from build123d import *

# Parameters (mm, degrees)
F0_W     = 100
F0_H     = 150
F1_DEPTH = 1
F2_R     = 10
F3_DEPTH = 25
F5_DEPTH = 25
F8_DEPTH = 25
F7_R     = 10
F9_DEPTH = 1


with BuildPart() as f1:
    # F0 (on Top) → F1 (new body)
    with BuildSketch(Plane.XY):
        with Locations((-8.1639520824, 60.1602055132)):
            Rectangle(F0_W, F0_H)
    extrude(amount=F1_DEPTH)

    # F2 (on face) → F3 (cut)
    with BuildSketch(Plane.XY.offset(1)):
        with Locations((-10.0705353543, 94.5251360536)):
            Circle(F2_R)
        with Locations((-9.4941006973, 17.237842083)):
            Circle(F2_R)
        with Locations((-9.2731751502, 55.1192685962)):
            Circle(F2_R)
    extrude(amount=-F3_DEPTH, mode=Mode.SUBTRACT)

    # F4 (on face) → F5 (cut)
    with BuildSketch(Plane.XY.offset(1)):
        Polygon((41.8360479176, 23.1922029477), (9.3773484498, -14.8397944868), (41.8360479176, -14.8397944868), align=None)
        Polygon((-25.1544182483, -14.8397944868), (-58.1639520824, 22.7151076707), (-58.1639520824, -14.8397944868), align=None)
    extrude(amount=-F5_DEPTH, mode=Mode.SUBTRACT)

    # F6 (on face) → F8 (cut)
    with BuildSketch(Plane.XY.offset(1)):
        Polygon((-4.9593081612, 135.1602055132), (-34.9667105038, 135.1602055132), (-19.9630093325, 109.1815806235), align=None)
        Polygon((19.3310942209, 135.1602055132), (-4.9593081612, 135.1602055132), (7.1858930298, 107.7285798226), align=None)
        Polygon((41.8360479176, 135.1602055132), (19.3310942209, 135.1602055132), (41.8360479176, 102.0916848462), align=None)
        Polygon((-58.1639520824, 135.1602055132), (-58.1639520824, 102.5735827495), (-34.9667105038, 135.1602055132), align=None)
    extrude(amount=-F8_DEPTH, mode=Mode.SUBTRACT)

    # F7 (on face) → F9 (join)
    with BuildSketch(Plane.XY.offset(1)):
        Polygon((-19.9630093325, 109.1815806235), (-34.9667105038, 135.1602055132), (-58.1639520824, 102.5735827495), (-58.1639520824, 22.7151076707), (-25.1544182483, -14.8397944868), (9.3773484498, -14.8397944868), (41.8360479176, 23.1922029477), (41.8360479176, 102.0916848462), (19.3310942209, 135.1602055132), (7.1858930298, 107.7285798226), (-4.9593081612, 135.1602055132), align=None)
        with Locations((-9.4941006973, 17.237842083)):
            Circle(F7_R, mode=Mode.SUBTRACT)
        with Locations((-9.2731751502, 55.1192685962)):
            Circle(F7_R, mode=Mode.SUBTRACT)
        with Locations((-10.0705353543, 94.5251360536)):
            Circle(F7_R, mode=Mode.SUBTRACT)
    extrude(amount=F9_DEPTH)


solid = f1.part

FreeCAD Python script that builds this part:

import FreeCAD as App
import Part
import Sketcher


def add_polygon(sketch, points):
    """Adds a closed chain of lines whose ends are joined by coincident constraints."""
    first, n = sketch.GeometryCount, len(points)
    for a, b in zip(points, points[1:] + points[:1]):
        sketch.addGeometry(Part.LineSegment(App.Vector(*a, 0), App.Vector(*b, 0)), False)
    for i in range(n):
        sketch.addConstraint(Sketcher.Constraint("Coincident", first + i, 2, first + (i + 1) % n, 1))

doc = App.newDocument("Part")
body = doc.addObject("PartDesign::Body", "Body")

# Sketch on XY plane
sketch1 = doc.addObject("Sketcher::SketchObject", "Sketch")
body.addObject(sketch1)
sketch1.AttachmentSupport = (doc.XY_Plane, [""])
sketch1.MapMode = "FlatFace"
add_polygon(sketch1, [(-58.163952, 135.160206), (-58.163952, -14.839794), (41.836048, -14.839794), (41.836048, 135.160206)])  # lines 0-3
sketch1.addConstraint(Sketcher.Constraint("Vertical", 0))
sketch1.addConstraint(Sketcher.Constraint("Horizontal", 1))
sketch1.addConstraint(Sketcher.Constraint("Vertical", 2))
sketch1.addConstraint(Sketcher.Constraint("Horizontal", 3))
sketch1.addConstraint(Sketcher.Constraint("DistanceX", 1, 1, 1, 2, 100.0))
sketch1.addConstraint(Sketcher.Constraint("DistanceY", 0, 2, 0, 1, 150.0))
sketch1.addConstraint(Sketcher.Constraint("DistanceX", 0, 2, -1, 1, 58.163952))
sketch1.addConstraint(Sketcher.Constraint("DistanceY", 0, 2, -1, 1, 14.839794))
pad1 = doc.addObject("PartDesign::Pad", "Pad")
body.addObject(pad1)
pad1.Profile = sketch1
pad1.Length = 1

# Sketch on XY plane
sketch2 = doc.addObject("Sketcher::SketchObject", "Sketch001")
body.addObject(sketch2)
sketch2.AttachmentSupport = (doc.XY_Plane, [""])
sketch2.MapMode = "FlatFace"
sketch2.AttachmentOffset = App.Placement(App.Vector(0, 0, 1), App.Rotation())
sketch2.addGeometry(Part.Circle(App.Vector(-10.070535, 94.525136, 0), App.Vector(0, 0, 1), 10), False)
sketch2.addGeometry(Part.Circle(App.Vector(-9.494101, 17.237842, 0), App.Vector(0, 0, 1), 10), False)
sketch2.addGeometry(Part.Circle(App.Vector(-9.273175, 55.119269, 0), App.Vector(0, 0, 1), 10), False)
sketch2.addConstraint(Sketcher.Constraint("Equal", 0, 1))
sketch2.addConstraint(Sketcher.Constraint("Equal", 1, 2))
sketch2.addConstraint(Sketcher.Constraint("Diameter", 0, 20.0))
sketch2.addConstraint(Sketcher.Constraint("DistanceX", 1, 3, -1, 1, 9.494101))
sketch2.addConstraint(Sketcher.Constraint("DistanceY", -1, 1, 2, 3, 55.119269))
sketch2.addConstraint(Sketcher.Constraint("DistanceX", 0, 3, 2, 3, 0.79736))
sketch2.addConstraint(Sketcher.Constraint("DistanceX", 0, 3, -1, 1, 10.070535))
sketch2.addConstraint(Sketcher.Constraint("DistanceY", -1, 1, 0, 3, 94.525136))
sketch2.addConstraint(Sketcher.Constraint("DistanceY", -1, 1, 1, 3, 17.237842))
pocket1 = doc.addObject("PartDesign::Pocket", "Pocket")
body.addObject(pocket1)
pocket1.Profile = sketch2
pocket1.Length = 25

# Sketch on XY plane
sketch3 = doc.addObject("Sketcher::SketchObject", "Sketch002")
body.addObject(sketch3)
sketch3.AttachmentSupport = (doc.XY_Plane, [""])
sketch3.MapMode = "FlatFace"
sketch3.AttachmentOffset = App.Placement(App.Vector(0, 0, 1), App.Rotation())
add_polygon(sketch3, [(41.836048, 23.192203), (9.377348, -14.839794), (41.836048, -14.839794)])  # lines 0-2
add_polygon(sketch3, [(-25.154418, -14.839794), (-58.163952, 22.715108), (-58.163952, -14.839794)])  # lines 3-5
sketch3.addConstraint(Sketcher.Constraint("Horizontal", 1))
sketch3.addConstraint(Sketcher.Constraint("Vertical", 2))
sketch3.addConstraint(Sketcher.Constraint("Vertical", 4))
sketch3.addConstraint(Sketcher.Constraint("Horizontal", 5))
sketch3.addConstraint(Sketcher.Constraint("Horizontal", 1, 2, 4, 2))
sketch3.addConstraint(Sketcher.Constraint("Equal", 0, 3))
sketch3.addConstraint(Sketcher.Constraint("Distance", 0, 50.0))
sketch3.addConstraint(Sketcher.Constraint("DistanceX", 3, 2, 2, 2, 100.0))
sketch3.addConstraint(Sketcher.Constraint("DistanceX", 1, 1, 1, 2, 32.458699))
sketch3.addConstraint(Sketcher.Constraint("DistanceX", 5, 1, 5, 2, 33.009534))
sketch3.addConstraint(Sketcher.Constraint("DistanceX", -1, 1, 0, 2, 9.377348))
sketch3.addConstraint(Sketcher.Constraint("DistanceY", 0, 2, -1, 1, 14.839794))
pocket2 = doc.addObject("PartDesign::Pocket", "Pocket001")
body.addObject(pocket2)
pocket2.Profile = sketch3
pocket2.Length = 25

# Sketch on XY plane
sketch4 = doc.addObject("Sketcher::SketchObject", "Sketch003")
body.addObject(sketch4)
sketch4.AttachmentSupport = (doc.XY_Plane, [""])
sketch4.MapMode = "FlatFace"
sketch4.AttachmentOffset = App.Placement(App.Vector(0, 0, 1), App.Rotation())
add_polygon(sketch4, [(-4.959308, 135.160206), (-34.966711, 135.160206), (-19.963009, 109.181581)])  # lines 0-2
add_polygon(sketch4, [(19.331094, 135.160206), (-4.959308, 135.160206), (7.185893, 107.72858)])  # lines 3-5
add_polygon(sketch4, [(41.836048, 135.160206), (19.331094, 135.160206), (41.836048, 102.091685)])  # lines 6-8
add_polygon(sketch4, [(-58.163952, 135.160206), (-58.163952, 102.573583), (-34.966711, 135.160206)])  # lines 9-11
sketch4.addConstraint(Sketcher.Constraint("Horizontal", 0))
sketch4.addConstraint(Sketcher.Constraint("Horizontal", 3))
sketch4.addConstraint(Sketcher.Constraint("Horizontal", 6))
sketch4.addConstraint(Sketcher.Constraint("Vertical", 8))
sketch4.addConstraint(Sketcher.Constraint("Vertical", 9))
sketch4.addConstraint(Sketcher.Constraint("Horizontal", 11))
sketch4.addConstraint(Sketcher.Constraint("Coincident", 3, 2, 2, 2))
sketch4.addConstraint(Sketcher.Constraint("Coincident", 6, 2, 5, 2))
sketch4.addConstraint(Sketcher.Constraint("Coincident", 10, 2, 0, 2))
sketch4.addConstraint(Sketcher.Constraint("Equal", 1, 2))
sketch4.addConstraint(Sketcher.Constraint("Equal", 2, 4))
sketch4.addConstraint(Sketcher.Constraint("Equal", 4, 5))
sketch4.addConstraint(Sketcher.Constraint("Equal", 7, 10))
sketch4.addConstraint(Sketcher.Constraint("Distance", 1, 30.0))
sketch4.addConstraint(Sketcher.Constraint("Distance", 7, 40.0))
sketch4.addConstraint(Sketcher.Constraint("DistanceY", 4, 2, 1, 2, 1.453001))
sketch4.addConstraint(Sketcher.Constraint("DistanceX", 11, 2, 11, 1, 23.197242))
sketch4.addConstraint(Sketcher.Constraint("DistanceY", 8, 1, 8, 2, 33.068521))
sketch4.addConstraint(Sketcher.Constraint("DistanceX", 0, 2, 1, 2, 15.003701))
sketch4.addConstraint(Sketcher.Constraint("DistanceX", 0, 2, -1, 1, 34.966711))
sketch4.addConstraint(Sketcher.Constraint("DistanceY", -1, 1, 1, 2, 109.181581))
pocket3 = doc.addObject("PartDesign::Pocket", "Pocket002")
body.addObject(pocket3)
pocket3.Profile = sketch4
pocket3.Length = 25

# Sketch on XY plane
sketch5 = doc.addObject("Sketcher::SketchObject", "Sketch004")
body.addObject(sketch5)
sketch5.AttachmentSupport = (doc.XY_Plane, [""])
sketch5.MapMode = "FlatFace"
sketch5.AttachmentOffset = App.Placement(App.Vector(0, 0, 1), App.Rotation())
add_polygon(sketch5, [(-19.963009, 109.181581), (-34.966711, 135.160206), (-58.163952, 102.573583), (-58.163952, 22.715108), (-25.154418, -14.839794), (9.377348, -14.839794), (41.836048, 23.192203), (41.836048, 102.091685), (19.331094, 135.160206), (7.185893, 107.72858), (-4.959308, 135.160206)])  # lines 0-10
sketch5.addGeometry(Part.Circle(App.Vector(-9.494101, 17.237842, 0), App.Vector(0, 0, 1), 10), False)  # 11
sketch5.addGeometry(Part.Circle(App.Vector(-9.273175, 55.119269, 0), App.Vector(0, 0, 1), 10), False)  # 12
sketch5.addGeometry(Part.Circle(App.Vector(-10.070535, 94.525136, 0), App.Vector(0, 0, 1), 10), False)  # 13
sketch5.addConstraint(Sketcher.Constraint("Vertical", 2))
sketch5.addConstraint(Sketcher.Constraint("Horizontal", 4))
sketch5.addConstraint(Sketcher.Constraint("Vertical", 6))
sketch5.addConstraint(Sketcher.Constraint("Equal", 11, 12))
sketch5.addConstraint(Sketcher.Constraint("Equal", 12, 13))
sketch5.addConstraint(Sketcher.Constraint("Horizontal", 0, 2, 7, 2))
sketch5.addConstraint(Sketcher.Constraint("Horizontal", 7, 2, 9, 2))
sketch5.addConstraint(Sketcher.Constraint("Equal", 3, 5))
sketch5.addConstraint(Sketcher.Constraint("Equal", 1, 7))
sketch5.addConstraint(Sketcher.Constraint("Equal", 0, 8))
sketch5.addConstraint(Sketcher.Constraint("Equal", 8, 9))
sketch5.addConstraint(Sketcher.Constraint("Equal", 9, 10))
sketch5.addConstraint(Sketcher.Constraint("Diameter", 11, 20.0))
sketch5.addConstraint(Sketcher.Constraint("Distance", 0, 30.0))
sketch5.addConstraint(Sketcher.Constraint("Distance", 1, 40.0))
sketch5.addConstraint(Sketcher.Constraint("Distance", 3, 50.0))
sketch5.addConstraint(Sketcher.Constraint("DistanceY", 8, 2, 10, 2, 1.453001))
sketch5.addConstraint(Sketcher.Constraint("DistanceY", 6, 1, 6, 2, 78.899482))
sketch5.addConstraint(Sketcher.Constraint("DistanceX", 11, 3, -1, 1, 9.494101))
sketch5.addConstraint(Sketcher.Constraint("DistanceX", 2, 2, 4, 2, 67.541301))
sketch5.addConstraint(Sketcher.Constraint("DistanceX", 4, 2, 5, 2, 32.458699))
sketch5.addConstraint(Sketcher.Constraint("DistanceX", 8, 2, 7, 2, 12.145201))
sketch5.addConstraint(Sketcher.Constraint("DistanceX", 4, 1, 4, 2, 34.531767))
sketch5.addConstraint(Sketcher.Constraint("DistanceY", 2, 2, 2, 1, 79.858475))
sketch5.addConstraint(Sketcher.Constraint("DistanceY", -1, 1, 12, 3, 55.119269))
sketch5.addConstraint(Sketcher.Constraint("DistanceX", 0, 2, -1, 1, 34.966711))
sketch5.addConstraint(Sketcher.Constraint("DistanceY", -1, 1, 8, 2, 107.72858))
sketch5.addConstraint(Sketcher.Constraint("DistanceX", 13, 3, 12, 3, 0.79736))
sketch5.addConstraint(Sketcher.Constraint("DistanceY", 13, 3, 0, 2, 40.635069))
sketch5.addConstraint(Sketcher.Constraint("DistanceY", 11, 3, 1, 2, 85.335741))
sketch5.addConstraint(Sketcher.Constraint("DistanceX", 13, 3, 7, 2, 29.40163))
pad2 = doc.addObject("PartDesign::Pad", "Pad001")
body.addObject(pad2)
pad2.Profile = sketch5
pad2.Length = 1

doc.recompute()
